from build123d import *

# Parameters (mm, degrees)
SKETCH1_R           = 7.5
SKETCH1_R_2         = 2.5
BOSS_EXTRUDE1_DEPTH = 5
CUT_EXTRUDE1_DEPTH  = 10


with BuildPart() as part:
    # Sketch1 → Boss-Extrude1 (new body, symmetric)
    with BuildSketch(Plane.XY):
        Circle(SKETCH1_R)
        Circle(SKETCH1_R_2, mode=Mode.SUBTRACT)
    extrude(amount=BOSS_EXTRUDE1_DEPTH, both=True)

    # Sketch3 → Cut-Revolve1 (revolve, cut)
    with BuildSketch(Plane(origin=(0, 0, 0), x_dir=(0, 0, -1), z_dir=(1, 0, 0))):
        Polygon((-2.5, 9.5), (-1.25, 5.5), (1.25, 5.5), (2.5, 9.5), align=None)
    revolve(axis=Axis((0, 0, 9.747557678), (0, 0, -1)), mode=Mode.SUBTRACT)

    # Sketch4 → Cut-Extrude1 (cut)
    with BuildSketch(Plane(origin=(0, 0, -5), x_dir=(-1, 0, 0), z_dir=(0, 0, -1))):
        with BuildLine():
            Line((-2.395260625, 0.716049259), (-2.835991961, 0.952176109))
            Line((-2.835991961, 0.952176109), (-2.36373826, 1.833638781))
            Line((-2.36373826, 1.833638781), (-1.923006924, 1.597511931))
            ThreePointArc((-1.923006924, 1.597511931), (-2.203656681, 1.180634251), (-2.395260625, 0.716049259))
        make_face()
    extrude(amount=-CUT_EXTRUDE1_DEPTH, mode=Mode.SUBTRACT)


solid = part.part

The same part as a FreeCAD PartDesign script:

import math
import FreeCAD as App
import Part
import Sketcher
from FreeCAD import Vector
Q = App.Units.Quantity


def add_polygon(sketch, points):
    """Adds a closed chain of lines whose ends are joined by coincident constraints."""
    first, n = sketch.GeometryCount, len(points)
    for a, b in zip(points, points[1:] + points[:1]):
        sketch.addGeometry(Part.LineSegment(App.Vector(*a, 0), App.Vector(*b, 0)), False)
    for i in range(n):
        sketch.addConstraint(Sketcher.Constraint("Coincident", first + i, 2, first + (i + 1) % n, 1))

doc = App.newDocument("Part")
params = doc.addObject("Spreadsheet::Sheet", "Params")
for row, (alias, value) in enumerate([
    ("sketch1_diameter", "15 mm"),
    ("sketch1_diameter2", "5 mm"),
    ("pad1_length", "10 mm"),
    ("sketch2_height", "5 mm"),
    ("sketch2_height2", "2.5 mm"),
    ("groove_angle", "360 deg"),
    ("sketch3_radius", "2.5 mm"),
    ("sketch3_length", "1 mm"),
    ("sketch3_length2", "0.5 mm"),
    ("pocket1_length", "10 mm"),
], start=1):
    params.set(f"A{row}", alias)
    params.set(f"B{row}", "=" + value)
    params.setAlias(f"B{row}", alias)

body = doc.addObject("PartDesign::Body", "Body")

sketch1 = body.newObject("Sketcher::SketchObject", "Sketch")
sketch1.AttachmentSupport = (doc.getObject("XY_Plane"), [""])
sketch1.MapMode = "FlatFace"
sketch1.addGeometry([
    Part.Circle(Vector(0, 0, 0), Vector(0, 0, 1), 7.5),
    Part.Circle(Vector(0, 0, 0), Vector(0, 0, 1), 2.5),
], False)
sketch1.addConstraint([
    Sketcher.Constraint("Coincident", 0, 3, -1, 1),
    Sketcher.Constraint("Coincident", 1, 3, -1, 1),
    Sketcher.Constraint("Diameter", 0, Q("15 mm")),
    Sketcher.Constraint("Diameter", 1, Q("5 mm")),
])
sketch1.setExpression("Constraints[2]", "Params.sketch1_diameter")
sketch1.setExpression("Constraints[3]", "Params.sketch1_diameter2")
pad1 = body.newObject("PartDesign::Pad", "Pad")
pad1.Profile = sketch1
pad1.setExpression("Length", "Params.pad1_length")
pad1.Midplane = True

sketch2 = body.newObject("Sketcher::SketchObject", "Sketch001")
sketch2.AttachmentSupport = (doc.getObject("YZ_Plane"), [""])
sketch2.MapMode = "FlatFace"
add_polygon(sketch2, [(9.5, 2.5), (5.5, 1.2), (5.5, -1.2), (9.5, -2.5)])
sketch2.addConstraint([
    Sketcher.Constraint("Vertical", 1),
    Sketcher.Constraint("Vertical", 3),
    Sketcher.Constraint("Equal", 0, 2),
    Sketcher.Constraint("DistanceY", 3, 1, 3, 2, Q("5 mm")),
    Sketcher.Constraint("DistanceY", 1, 2, 1, 1, Q("2.5 mm")),
    Sketcher.Constraint("DistanceX", 1, 2, 2, 2, Q("4 mm")),
    Sketcher.Constraint("DistanceX", -1, 1, 0, 2, Q("5.5 mm")),
    Sketcher.Constraint("DistanceY", 2, 2, -1, 1, Q("2.5 mm")),
])
sketch2.setExpression("Constraints[7]", "Params.sketch2_height")
sketch2.setExpression("Constraints[8]", "Params.sketch2_height2")
groove = body.newObject("PartDesign::Groove", "Groove")
groove.Profile = sketch2
groove.ReferenceAxis = (sketch2, ["V_Axis"])
groove.setExpression("Angle", "Params.groove_angle")

sketch3 = body.newObject("Sketcher::SketchObject", "Sketch002")
sketch3.AttachmentSupport = (doc.getObject("XY_Plane"), [""])
sketch3.MapMode = "FlatFace"
sketch3.AttachmentOffset = App.Placement(Vector(0, 0, -5), App.Rotation())
sketch3.addGeometry([
    Part.LineSegment(Vector(2.84, 0.95, 0), Vector(2.4, 0.72, 0)),
    Part.ArcOfCircle(Part.Circle(Vector(0, 0, 0), Vector(0, 0, 1), 2.5), math.radians(17), math.radians(40)),
    Part.LineSegment(Vector(1.92, 1.6, 0), Vector(2.36, 1.83, 0)),
    Part.LineSegment(Vector(2.36, 1.83, 0), Vector(2.84, 0.95, 0)),
], False)
sketch3.addConstraint([
    Sketcher.Constraint("Coincident", 0, 2, 1, 1),
    Sketcher.Constraint("Coincident", 1, 2, 2, 1),
    Sketcher.Constraint("Coincident", 2, 2, 3, 1),
    Sketcher.Constraint("Coincident", 3, 2, 0, 1),
    Sketcher.Constraint("Coincident", 1, 3, -1, 1),
    Sketcher.Constraint("Parallel", 0, 2),
    Sketcher.Constraint("Perpendicular", 2, 3),
    Sketcher.Constraint("Equal", 0, 2),
    Sketcher.Constraint("Radius", 1, Q("2.5 mm")),
    Sketcher.Constraint("Distance", 3, Q("1 mm")),
    Sketcher.Constraint("Distance", 0, Q("0.5 mm")),
    Sketcher.Constraint("DistanceX", -1, 1, 0, 2, Q("2.395261 mm")),
])
sketch3.setExpression("Constraints[8]", "Params.sketch3_radius")
sketch3.setExpression("Constraints[9]", "Params.sketch3_length")
sketch3.setExpression("Constraints[10]", "Params.sketch3_length2")
pocket1 = body.newObject("PartDesign::Pocket", "Pocket")
pocket1.Profile = sketch3
pocket1.setExpression("Length", "Params.pocket1_length")
pocket1.Reversed = True

doc.recompute()
